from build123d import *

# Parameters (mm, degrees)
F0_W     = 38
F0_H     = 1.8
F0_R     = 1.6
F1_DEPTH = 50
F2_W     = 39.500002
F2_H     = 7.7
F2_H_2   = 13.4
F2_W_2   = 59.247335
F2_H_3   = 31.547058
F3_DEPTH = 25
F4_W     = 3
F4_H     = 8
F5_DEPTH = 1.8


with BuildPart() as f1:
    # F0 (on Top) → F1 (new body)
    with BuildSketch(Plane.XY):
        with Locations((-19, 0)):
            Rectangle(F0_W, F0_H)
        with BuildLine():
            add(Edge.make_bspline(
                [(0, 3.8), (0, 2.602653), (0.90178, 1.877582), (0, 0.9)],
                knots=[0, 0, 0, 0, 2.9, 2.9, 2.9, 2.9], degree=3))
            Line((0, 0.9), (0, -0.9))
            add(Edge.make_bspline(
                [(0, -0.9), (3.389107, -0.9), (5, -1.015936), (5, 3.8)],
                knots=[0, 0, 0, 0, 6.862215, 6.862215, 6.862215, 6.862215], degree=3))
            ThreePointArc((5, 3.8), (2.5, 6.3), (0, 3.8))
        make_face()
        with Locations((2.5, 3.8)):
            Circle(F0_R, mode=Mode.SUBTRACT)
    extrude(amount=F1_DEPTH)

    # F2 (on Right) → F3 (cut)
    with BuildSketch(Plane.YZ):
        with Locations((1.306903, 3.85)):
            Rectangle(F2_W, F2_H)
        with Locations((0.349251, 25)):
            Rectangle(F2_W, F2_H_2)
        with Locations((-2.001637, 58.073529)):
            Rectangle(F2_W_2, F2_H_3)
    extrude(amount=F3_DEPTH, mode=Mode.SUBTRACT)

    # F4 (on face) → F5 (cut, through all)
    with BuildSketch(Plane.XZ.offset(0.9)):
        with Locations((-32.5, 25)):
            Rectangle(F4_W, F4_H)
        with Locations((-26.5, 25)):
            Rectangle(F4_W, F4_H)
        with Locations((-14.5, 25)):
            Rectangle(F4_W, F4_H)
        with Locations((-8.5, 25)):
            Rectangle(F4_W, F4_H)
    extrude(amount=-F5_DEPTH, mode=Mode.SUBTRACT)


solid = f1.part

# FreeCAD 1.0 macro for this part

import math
import FreeCAD as App
import Part
import Sketcher
Q = App.Units.Quantity


def add_polygon(sketch, points):
    """Adds a closed chain of lines whose ends are joined by coincident constraints."""
    first, n = sketch.GeometryCount, len(points)
    for a, b in zip(points, points[1:] + points[:1]):
        sketch.addGeometry(Part.LineSegment(App.Vector(*a, 0), App.Vector(*b, 0)), False)
    for i in range(n):
        sketch.addConstraint(Sketcher.Constraint("Coincident", first + i, 2, first + (i + 1) % n, 1))

doc = App.newDocument("Part")
body = doc.addObject("PartDesign::Body", "Body")

sketch1 = body.newObject("Sketcher::SketchObject", "Sketch")
sketch1.AttachmentSupport = (doc.getObject("XY_Plane"), [""])
sketch1.MapMode = "FlatFace"
sketch1.addGeometry([
    Part.LineSegment(App.Vector(-38, 0.9, 0), App.Vector(-38, -0.9, 0)),
    Part.LineSegment(App.Vector(-38, -0.9, 0), App.Vector(0, -0.9, 0)),
    Part.BSplineCurve([App.Vector(0, -0.9, 0), App.Vector(3.389107, -0.9, 0), App.Vector(5, -1.015936, 0), App.Vector(5, 3.8, 0)], [4, 4], [0, 6.862215], False, 3, [1, 1, 1, 1], False),
    Part.ArcOfCircle(Part.Circle(App.Vector(2.5, 3.8, 0), App.Vector(0, 0, 1), 2.5), math.radians(0), math.radians(180)),
    Part.BSplineCurve([App.Vector(0, 3.8, 0), App.Vector(0, 2.602653, 0), App.Vector(0.90178, 1.877582, 0), App.Vector(0, 0.9, 0)], [4, 4], [0, 2.9], False, 3, [1, 1, 1, 1], False),
    Part.LineSegment(App.Vector(0, 0.9, 0), App.Vector(-38, 0.9, 0)),
    Part.Circle(App.Vector(2.5, 3.8, 0), App.Vector(0, 0, 1), 1.6),
], False)
sketch1.addConstraint([
    Sketcher.Constraint("Block", 2),
    Sketcher.Constraint("Block", 4),
    Sketcher.Constraint("Coincident", 0, 2, 1, 1),
    Sketcher.Constraint("Coincident", 1, 2, 2, 1),
    Sketcher.Constraint("Coincident", 2, 2, 3, 1),
    Sketcher.Constraint("Coincident", 3, 2, 4, 1),
    Sketcher.Constraint("Coincident", 4, 2, 5, 1),
    Sketcher.Constraint("Coincident", 5, 2, 0, 1),
    Sketcher.Constraint("Vertical", 0),
    Sketcher.Constraint("Horizontal", 1),
    Sketcher.Constraint("Horizontal", 5),
    Sketcher.Constraint("Coincident", 6, 3, 3, 3),
    Sketcher.Constraint("Diameter", 6, Q("3.2 mm")),
    Sketcher.Constraint("DistanceX", 1, 1, 1, 2, Q("38 mm")),
    Sketcher.Constraint("DistanceY", -1, 1, 3, 3, Q("3.8 mm")),
])
pad1 = body.newObject("PartDesign::Pad", "Pad")
pad1.Profile = sketch1
pad1.Length = 50

sketch2 = body.newObject("Sketcher::SketchObject", "Sketch001")
sketch2.AttachmentSupport = (doc.getObject("YZ_Plane"), [""])
sketch2.MapMode = "FlatFace"
add_polygon(sketch2, [(-18, 8), (-18, 0), (21, 0), (21, 8)])
add_polygon(sketch2, [(-19, 32), (-19, 18), (20, 18), (20, 32)])
add_polygon(sketch2, [(-32, 74), (-32, 42), (28, 42), (28, 74)])
sketch2.addConstraint([
    Sketcher.Constraint("Vertical", 0),
    Sketcher.Constraint("Horizontal", 1),
    Sketcher.Constraint("Vertical", 2),
    Sketcher.Constraint("Horizontal", 3),
    Sketcher.Constraint("Vertical", 4),
    Sketcher.Constraint("Horizontal", 5),
    Sketcher.Constraint("Vertical", 6),
    Sketcher.Constraint("Horizontal", 7),
    Sketcher.Constraint("Vertical", 8),
    Sketcher.Constraint("Horizontal", 9),
    Sketcher.Constraint("Vertical", 10),
    Sketcher.Constraint("Horizontal", 11),
    Sketcher.Constraint("PointOnObject", 0, 2, -1),
    Sketcher.Constraint("Equal", 3, 5),
    Sketcher.Constraint("DistanceX", 1, 1, 1, 2, Q("39.500002 mm")),
    Sketcher.Constraint("DistanceY", 0, 2, 0, 1, Q("7.7 mm")),
    Sketcher.Constraint("DistanceY", 4, 2, 4, 1, Q("13.4 mm")),
    Sketcher.Constraint("DistanceY", 2, 2, 6, 2, Q("24 mm")),
    Sketcher.Constraint("DistanceY", 4, 2, 8, 2, Q("24 mm")),
    Sketcher.Constraint("DistanceY", 8, 2, 8, 1, Q("31.547058 mm")),
    Sketcher.Constraint("DistanceX", 9, 1, 9, 2, Q("59.247335 mm")),
    Sketcher.Constraint("DistanceX", 4, 2, -1, 1, Q("19.40075 mm")),
    Sketcher.Constraint("DistanceX", -1, 1, 9, 2, Q("27.622031 mm")),
    Sketcher.Constraint("DistanceX", 4, 2, 3, 2, Q("0.957652 mm")),
])
pocket1 = body.newObject("PartDesign::Pocket", "Pocket")
pocket1.Profile = sketch2
pocket1.Length = 25
pocket1.Reversed = True

sketch3 = body.newObject("Sketcher::SketchObject", "Sketch002")
sketch3.AttachmentSupport = (doc.getObject("XZ_Plane"), [""])
sketch3.MapMode = "FlatFace"
sketch3.AttachmentOffset = App.Placement(App.Vector(0, 0, 0.9), App.Rotation())
add_polygon(sketch3, [(-34, 29), (-34, 21), (-31, 21), (-31, 29)])
add_polygon(sketch3, [(-28, 29), (-28, 21), (-25, 21), (-25, 29)])
add_polygon(sketch3, [(-16, 29), (-16, 21), (-13, 21), (-13, 29)])
add_polygon(sketch3, [(-10, 29), (-10, 21), (-7, 21), (-7, 29)])
sketch3.addConstraint([
    Sketcher.Constraint("Vertical", 0),
    Sketcher.Constraint("Horizontal", 1),
    Sketcher.Constraint("Vertical", 2),
    Sketcher.Constraint("Horizontal", 3),
    Sketcher.Constraint("Vertical", 4),
    Sketcher.Constraint("Horizontal", 5),
    Sketcher.Constraint("Vertical", 6),
    Sketcher.Constraint("Horizontal", 7),
    Sketcher.Constraint("Vertical", 8),
    Sketcher.Constraint("Horizontal", 9),
    Sketcher.Constraint("Vertical", 10),
    Sketcher.Constraint("Horizontal", 11),
    Sketcher.Constraint("Vertical", 12),
    Sketcher.Constraint("Horizontal", 13),
    Sketcher.Constraint("Vertical", 14),
    Sketcher.Constraint("Horizontal", 15),
    Sketcher.Constraint("Horizontal", 1, 2, 4, 2),
    Sketcher.Constraint("Horizontal", 3, 2, 6, 2),
    Sketcher.Constraint("Horizontal", 5, 2, 8, 2),
    Sketcher.Constraint("Horizontal", 7, 2, 10, 2),
    Sketcher.Constraint("Horizontal", 9, 2, 12, 2),
    Sketcher.Constraint("Horizontal", 11, 2, 14, 2),
    Sketcher.Constraint("Equal", 3, 5),
    Sketcher.Constraint("Equal", 7, 9),
    Sketcher.Constraint("Equal", 11, 13),
    Sketcher.Constraint("DistanceX", 1, 1, 1, 2, Q("3 mm")),
    Sketcher.Constraint("DistanceY", 0, 2, 0, 1, Q("8 mm")),
    Sketcher.Constraint("DistanceX", 0, 2, -1, 1, Q("34 mm")),
    Sketcher.Constraint("DistanceY", -1, 1, 0, 2, Q("21 mm")),
    Sketcher.Constraint("DistanceX", 4, 2, -1, 1, Q("28 mm")),
    Sketcher.Constraint("DistanceX", 8, 2, -1, 1, Q("16 mm")),
    Sketcher.Constraint("DistanceX", 12, 2, -1, 1, Q("10 mm")),
])
pocket2 = body.newObject("PartDesign::Pocket", "Pocket001")
pocket2.Profile = sketch3
pocket2.Type = "ThroughAll"

doc.recompute()
